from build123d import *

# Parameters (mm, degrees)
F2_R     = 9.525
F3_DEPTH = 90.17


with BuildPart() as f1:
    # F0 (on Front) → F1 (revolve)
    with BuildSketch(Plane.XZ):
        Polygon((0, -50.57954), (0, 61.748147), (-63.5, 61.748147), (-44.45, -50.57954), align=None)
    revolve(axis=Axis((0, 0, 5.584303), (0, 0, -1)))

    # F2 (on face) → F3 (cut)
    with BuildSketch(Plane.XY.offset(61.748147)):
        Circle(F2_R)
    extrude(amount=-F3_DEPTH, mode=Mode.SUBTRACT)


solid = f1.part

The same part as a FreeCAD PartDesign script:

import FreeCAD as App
import Part
import Sketcher
from FreeCAD import Vector
Q = App.Units.Quantity


def add_polygon(sketch, points):
    """Adds a closed chain of lines whose ends are joined by coincident constraints."""
    first, n = sketch.GeometryCount, len(points)
    for a, b in zip(points, points[1:] + points[:1]):
        sketch.addGeometry(Part.LineSegment(App.Vector(*a, 0), App.Vector(*b, 0)), False)
    for i in range(n):
        sketch.addConstraint(Sketcher.Constraint("Coincident", first + i, 2, first + (i + 1) % n, 1))

doc = App.newDocument("Part")
params = doc.addObject("Spreadsheet::Sheet", "Params")
for row, (alias, value) in enumerate([
    ("sketch1_width", "2.5 in"),
    ("sketch1_width2", "1.75 in"),
    ("revolution_angle", "360 deg"),
    ("sketch2_diameter", "0.75 in"),
    ("pocket1_length", "3.55 in"),
], start=1):
    params.set(f"A{row}", alias)
    params.set(f"B{row}", "=" + value)
    params.setAlias(f"B{row}", alias)

body = doc.addObject("PartDesign::Body", "Body")

# Sketch on XZ plane
sketch1 = body.newObject("Sketcher::SketchObject", "Sketch")
sketch1.AttachmentSupport = (doc.getObject("XZ_Plane"), [""])
sketch1.MapMode = "FlatFace"
add_polygon(sketch1, [(0, -51), (0, 62), (-64, 62), (-44, -51)])  # lines 0-3
sketch1.addConstraint([
    Sketcher.Constraint("Vertical", 0),
    Sketcher.Constraint("Horizontal", 1),
    Sketcher.Constraint("Horizontal", 3),
    Sketcher.Constraint("PointOnObject", 0, 2, -2),
    Sketcher.Constraint("DistanceX", 1, 2, 1, 1, Q("2.5 in")),
    Sketcher.Constraint("DistanceX", 3, 1, 3, 2, Q("1.75 in")),
    Sketcher.Constraint("Distance", 2, 113.93161),
    Sketcher.Constraint("DistanceY", 2, 2, -1, 1, 50.57954),
])
sketch1.setExpression("Constraints[8]", "Params.sketch1_width")
sketch1.setExpression("Constraints[9]", "Params.sketch1_width2")
revolution = body.newObject("PartDesign::Revolution", "Revolution")
revolution.Profile = sketch1
revolution.ReferenceAxis = (sketch1, ["V_Axis"])
revolution.setExpression("Angle", "Params.revolution_angle")

# Sketch on XY plane
sketch2 = body.newObject("Sketcher::SketchObject", "Sketch001")
sketch2.AttachmentSupport = (doc.getObject("XY_Plane"), [""])
sketch2.MapMode = "FlatFace"
sketch2.AttachmentOffset = App.Placement(Vector(0, 0, 61.748147), App.Rotation())
sketch2.addGeometry(Part.Circle(Vector(0, 0, 0), Vector(0, 0, 1), 10), False)
sketch2.addConstraint([
    Sketcher.Constraint("Coincident", 0, 3, -1, 1),
    Sketcher.Constraint("Diameter", 0, Q("0.75 in")),
])
sketch2.setExpression("Constraints[1]", "Params.sketch2_diameter")
pocket1 = body.newObject("PartDesign::Pocket", "Pocket")
pocket1.Profile = sketch2
pocket1.setExpression("Length", "Params.pocket1_length")

doc.recompute()
